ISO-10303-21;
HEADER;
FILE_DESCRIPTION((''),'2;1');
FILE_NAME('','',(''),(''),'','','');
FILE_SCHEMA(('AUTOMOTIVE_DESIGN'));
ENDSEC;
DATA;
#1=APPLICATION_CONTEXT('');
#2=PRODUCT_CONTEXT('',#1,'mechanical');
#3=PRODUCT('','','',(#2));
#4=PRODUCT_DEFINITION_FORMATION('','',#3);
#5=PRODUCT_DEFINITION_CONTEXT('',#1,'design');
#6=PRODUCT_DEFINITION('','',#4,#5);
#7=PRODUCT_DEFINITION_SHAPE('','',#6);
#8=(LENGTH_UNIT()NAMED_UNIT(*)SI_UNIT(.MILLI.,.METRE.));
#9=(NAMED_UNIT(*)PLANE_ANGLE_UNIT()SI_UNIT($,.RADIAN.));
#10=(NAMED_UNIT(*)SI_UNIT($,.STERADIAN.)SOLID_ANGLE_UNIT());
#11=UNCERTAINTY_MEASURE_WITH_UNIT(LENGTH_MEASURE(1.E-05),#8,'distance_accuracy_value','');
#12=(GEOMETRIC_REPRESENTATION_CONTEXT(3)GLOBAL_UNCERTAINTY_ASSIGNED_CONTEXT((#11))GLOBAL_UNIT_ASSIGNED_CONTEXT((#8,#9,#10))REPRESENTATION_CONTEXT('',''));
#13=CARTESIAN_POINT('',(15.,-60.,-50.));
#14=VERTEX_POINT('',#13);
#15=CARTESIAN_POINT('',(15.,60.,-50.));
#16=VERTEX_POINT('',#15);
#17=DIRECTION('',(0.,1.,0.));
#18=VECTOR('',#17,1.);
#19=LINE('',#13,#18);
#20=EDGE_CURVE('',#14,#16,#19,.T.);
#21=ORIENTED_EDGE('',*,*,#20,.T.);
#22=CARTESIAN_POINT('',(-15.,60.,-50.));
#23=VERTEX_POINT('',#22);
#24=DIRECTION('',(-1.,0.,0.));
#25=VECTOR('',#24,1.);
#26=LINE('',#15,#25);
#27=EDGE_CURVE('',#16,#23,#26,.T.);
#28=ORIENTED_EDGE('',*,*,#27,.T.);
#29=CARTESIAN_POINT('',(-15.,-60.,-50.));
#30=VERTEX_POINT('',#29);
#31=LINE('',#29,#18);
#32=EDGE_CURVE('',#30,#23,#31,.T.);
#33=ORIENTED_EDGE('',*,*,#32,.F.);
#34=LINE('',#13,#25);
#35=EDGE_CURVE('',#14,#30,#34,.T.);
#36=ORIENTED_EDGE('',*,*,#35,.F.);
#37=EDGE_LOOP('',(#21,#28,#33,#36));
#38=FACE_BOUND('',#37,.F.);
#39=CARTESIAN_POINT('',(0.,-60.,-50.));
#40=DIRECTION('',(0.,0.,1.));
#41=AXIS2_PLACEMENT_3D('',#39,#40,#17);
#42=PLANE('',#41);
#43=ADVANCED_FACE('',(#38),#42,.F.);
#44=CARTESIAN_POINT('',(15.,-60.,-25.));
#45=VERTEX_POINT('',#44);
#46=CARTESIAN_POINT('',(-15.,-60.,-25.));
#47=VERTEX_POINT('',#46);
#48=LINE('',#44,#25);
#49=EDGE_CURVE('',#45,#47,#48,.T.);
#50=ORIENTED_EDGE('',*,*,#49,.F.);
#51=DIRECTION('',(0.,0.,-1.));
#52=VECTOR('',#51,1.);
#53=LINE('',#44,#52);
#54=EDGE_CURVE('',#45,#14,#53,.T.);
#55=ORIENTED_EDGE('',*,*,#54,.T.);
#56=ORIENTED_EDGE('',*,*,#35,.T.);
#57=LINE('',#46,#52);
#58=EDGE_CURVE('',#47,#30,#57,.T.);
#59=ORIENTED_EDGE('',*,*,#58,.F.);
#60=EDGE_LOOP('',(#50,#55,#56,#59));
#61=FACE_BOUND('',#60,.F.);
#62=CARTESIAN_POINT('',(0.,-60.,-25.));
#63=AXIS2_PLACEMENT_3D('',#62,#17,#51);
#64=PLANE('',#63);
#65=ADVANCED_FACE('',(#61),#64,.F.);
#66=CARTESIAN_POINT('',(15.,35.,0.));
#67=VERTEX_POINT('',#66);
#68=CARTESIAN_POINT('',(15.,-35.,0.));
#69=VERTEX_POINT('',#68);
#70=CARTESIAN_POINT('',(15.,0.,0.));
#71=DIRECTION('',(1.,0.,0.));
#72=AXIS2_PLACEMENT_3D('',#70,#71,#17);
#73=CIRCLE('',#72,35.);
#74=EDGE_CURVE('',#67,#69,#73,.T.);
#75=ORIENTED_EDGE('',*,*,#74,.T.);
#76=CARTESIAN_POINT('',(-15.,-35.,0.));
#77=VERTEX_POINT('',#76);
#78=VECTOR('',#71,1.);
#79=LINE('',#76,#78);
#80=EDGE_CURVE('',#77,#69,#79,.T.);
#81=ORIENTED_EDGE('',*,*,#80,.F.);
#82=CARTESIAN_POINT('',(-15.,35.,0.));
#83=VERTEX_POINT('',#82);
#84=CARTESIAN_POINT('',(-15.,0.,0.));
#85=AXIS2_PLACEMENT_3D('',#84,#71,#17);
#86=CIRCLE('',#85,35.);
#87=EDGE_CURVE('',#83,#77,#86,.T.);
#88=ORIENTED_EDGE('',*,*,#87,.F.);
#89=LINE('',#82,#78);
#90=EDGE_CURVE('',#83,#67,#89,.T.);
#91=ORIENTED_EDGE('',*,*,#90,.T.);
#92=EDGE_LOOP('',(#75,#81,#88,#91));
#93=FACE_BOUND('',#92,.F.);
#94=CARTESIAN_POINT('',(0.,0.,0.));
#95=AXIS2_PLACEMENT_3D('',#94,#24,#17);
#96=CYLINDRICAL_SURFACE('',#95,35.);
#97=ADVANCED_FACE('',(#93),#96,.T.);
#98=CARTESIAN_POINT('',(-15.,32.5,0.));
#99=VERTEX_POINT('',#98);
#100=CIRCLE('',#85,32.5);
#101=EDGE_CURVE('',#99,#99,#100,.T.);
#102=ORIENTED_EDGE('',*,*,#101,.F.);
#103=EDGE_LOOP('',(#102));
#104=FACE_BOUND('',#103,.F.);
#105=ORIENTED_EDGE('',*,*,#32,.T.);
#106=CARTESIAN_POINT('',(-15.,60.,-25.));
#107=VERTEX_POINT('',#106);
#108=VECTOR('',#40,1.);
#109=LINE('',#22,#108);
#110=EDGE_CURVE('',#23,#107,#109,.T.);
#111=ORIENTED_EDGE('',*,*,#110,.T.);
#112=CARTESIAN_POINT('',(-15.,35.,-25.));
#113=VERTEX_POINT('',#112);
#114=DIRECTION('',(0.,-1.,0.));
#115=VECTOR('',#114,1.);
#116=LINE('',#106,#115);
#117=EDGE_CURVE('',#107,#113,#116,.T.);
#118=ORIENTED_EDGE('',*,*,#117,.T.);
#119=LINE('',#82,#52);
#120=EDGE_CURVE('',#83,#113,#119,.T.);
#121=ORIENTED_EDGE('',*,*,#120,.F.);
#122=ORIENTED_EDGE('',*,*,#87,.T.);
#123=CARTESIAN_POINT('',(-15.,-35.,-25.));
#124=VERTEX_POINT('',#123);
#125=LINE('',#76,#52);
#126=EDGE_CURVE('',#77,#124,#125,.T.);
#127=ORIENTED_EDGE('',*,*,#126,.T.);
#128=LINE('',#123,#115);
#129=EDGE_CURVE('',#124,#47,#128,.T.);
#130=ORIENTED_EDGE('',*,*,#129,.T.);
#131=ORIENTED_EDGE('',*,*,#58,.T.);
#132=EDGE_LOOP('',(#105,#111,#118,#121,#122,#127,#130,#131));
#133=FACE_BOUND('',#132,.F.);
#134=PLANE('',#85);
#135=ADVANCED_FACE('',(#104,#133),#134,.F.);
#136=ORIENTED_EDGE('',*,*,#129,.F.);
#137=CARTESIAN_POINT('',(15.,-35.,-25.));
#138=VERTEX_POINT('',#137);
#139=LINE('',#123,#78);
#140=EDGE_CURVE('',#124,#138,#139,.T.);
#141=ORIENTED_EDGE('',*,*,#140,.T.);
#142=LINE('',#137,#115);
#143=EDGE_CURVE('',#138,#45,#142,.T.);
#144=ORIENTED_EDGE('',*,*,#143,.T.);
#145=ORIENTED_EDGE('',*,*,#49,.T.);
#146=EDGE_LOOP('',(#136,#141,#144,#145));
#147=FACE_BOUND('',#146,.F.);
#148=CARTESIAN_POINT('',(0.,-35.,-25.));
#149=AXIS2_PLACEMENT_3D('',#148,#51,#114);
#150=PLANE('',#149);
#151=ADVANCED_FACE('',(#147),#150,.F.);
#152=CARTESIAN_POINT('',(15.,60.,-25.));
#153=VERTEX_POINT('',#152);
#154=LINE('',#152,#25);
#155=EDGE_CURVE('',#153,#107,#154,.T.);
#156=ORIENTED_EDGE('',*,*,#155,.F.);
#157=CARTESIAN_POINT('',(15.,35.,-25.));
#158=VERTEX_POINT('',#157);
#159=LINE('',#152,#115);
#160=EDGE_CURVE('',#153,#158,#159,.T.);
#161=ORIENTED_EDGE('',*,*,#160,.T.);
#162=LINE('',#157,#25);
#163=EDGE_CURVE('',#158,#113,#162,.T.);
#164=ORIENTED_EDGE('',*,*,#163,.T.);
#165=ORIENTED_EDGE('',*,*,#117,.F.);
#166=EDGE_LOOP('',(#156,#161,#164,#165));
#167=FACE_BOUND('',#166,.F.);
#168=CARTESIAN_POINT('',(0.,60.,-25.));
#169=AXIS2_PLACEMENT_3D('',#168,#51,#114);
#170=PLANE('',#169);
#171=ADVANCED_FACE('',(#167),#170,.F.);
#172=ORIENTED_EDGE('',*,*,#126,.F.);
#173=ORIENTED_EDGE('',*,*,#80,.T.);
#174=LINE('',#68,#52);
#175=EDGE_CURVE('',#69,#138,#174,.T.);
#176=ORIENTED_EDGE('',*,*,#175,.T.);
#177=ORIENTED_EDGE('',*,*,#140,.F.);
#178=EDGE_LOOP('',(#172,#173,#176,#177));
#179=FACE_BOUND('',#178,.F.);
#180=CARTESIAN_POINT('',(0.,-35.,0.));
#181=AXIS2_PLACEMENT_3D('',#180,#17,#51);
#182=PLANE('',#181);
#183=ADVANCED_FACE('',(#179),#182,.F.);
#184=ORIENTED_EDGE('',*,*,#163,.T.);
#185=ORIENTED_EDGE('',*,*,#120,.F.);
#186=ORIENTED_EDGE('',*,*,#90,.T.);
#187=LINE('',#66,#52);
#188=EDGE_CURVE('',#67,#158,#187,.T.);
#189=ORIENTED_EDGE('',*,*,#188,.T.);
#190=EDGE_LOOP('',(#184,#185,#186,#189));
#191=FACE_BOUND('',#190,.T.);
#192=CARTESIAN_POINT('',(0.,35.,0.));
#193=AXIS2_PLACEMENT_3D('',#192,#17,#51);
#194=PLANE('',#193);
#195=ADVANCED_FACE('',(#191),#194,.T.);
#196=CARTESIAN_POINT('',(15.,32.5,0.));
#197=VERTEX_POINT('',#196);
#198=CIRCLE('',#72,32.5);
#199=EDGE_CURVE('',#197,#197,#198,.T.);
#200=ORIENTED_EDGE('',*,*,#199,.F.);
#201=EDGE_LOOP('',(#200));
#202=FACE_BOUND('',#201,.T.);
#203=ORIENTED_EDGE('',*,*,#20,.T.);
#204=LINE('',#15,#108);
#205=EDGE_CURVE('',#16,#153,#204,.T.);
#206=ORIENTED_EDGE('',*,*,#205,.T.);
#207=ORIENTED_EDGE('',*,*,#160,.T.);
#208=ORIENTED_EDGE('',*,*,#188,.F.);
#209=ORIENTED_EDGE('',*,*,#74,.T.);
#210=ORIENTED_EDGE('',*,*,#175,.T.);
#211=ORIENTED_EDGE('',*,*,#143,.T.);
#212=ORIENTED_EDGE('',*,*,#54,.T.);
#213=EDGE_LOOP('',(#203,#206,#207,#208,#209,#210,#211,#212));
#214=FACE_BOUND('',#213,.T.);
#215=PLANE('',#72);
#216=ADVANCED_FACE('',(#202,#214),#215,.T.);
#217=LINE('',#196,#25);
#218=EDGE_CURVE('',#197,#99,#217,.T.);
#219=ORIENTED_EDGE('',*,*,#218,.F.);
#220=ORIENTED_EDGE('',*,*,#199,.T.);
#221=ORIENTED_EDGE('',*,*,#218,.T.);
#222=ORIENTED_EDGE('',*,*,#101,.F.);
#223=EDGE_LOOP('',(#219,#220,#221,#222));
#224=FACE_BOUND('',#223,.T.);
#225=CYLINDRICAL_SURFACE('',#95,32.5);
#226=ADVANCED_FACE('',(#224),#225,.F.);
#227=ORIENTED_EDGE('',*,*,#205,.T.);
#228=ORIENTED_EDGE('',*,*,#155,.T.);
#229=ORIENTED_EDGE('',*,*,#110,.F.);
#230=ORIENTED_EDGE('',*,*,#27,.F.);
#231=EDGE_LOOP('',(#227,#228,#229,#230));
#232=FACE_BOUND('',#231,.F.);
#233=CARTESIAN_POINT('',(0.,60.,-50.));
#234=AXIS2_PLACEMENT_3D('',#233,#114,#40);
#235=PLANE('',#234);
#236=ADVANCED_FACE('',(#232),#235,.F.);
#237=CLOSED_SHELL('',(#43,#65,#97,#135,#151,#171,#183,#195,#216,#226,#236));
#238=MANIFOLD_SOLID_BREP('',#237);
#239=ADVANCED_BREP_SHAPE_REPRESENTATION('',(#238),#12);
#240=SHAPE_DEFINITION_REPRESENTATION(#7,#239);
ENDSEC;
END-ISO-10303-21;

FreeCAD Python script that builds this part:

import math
import FreeCAD as App
import Part
import Sketcher

doc = App.newDocument("Part")
params = doc.addObject("Spreadsheet::Sheet", "Params")
for row, (alias, value) in enumerate([
    ("sketch1_diameter", "65 mm"),
    ("sketch1_radius", "35 mm"),
    ("sketch1_width", "25 mm"),
    ("pad1_length", "30 mm"),
], start=1):
    params.set(f"A{row}", alias)
    params.set(f"B{row}", "=" + value)
    params.setAlias(f"B{row}", alias)

body = doc.addObject("PartDesign::Body", "Body")

# Sketch on YZ plane
sketch1 = body.newObject("Sketcher::SketchObject", "Sketch")
sketch1.AttachmentSupport = (doc.getObject("YZ_Plane"), [""])
sketch1.MapMode = "FlatFace"
sketch1.addGeometry([
    Part.LineSegment(App.Vector(35, -25, 0), App.Vector(35, 0, 0)),  # 0
    Part.ArcOfCircle(Part.Circle(App.Vector(0, 0, 0), App.Vector(0, 0, 1), 35), math.radians(0), math.radians(180)),  # 1
    Part.LineSegment(App.Vector(-35, 0, 0), App.Vector(-35, -25, 0)),  # 2
    Part.LineSegment(App.Vector(-35, -25, 0), App.Vector(-60, -25, 0)),  # 3
    Part.LineSegment(App.Vector(-60, -25, 0), App.Vector(-60, -50, 0)),  # 4
    Part.LineSegment(App.Vector(-60, -50, 0), App.Vector(60, -50, 0)),  # 5
    Part.LineSegment(App.Vector(60, -50, 0), App.Vector(60, -25, 0)),  # 6
    Part.LineSegment(App.Vector(60, -25, 0), App.Vector(35, -25, 0)),  # 7
    Part.Circle(App.Vector(0, 0, 0), App.Vector(0, 0, 1), 32),  # 8
], False)
sketch1.addConstraint([
    Sketcher.Constraint("Tangent", 0, 2, 1, 1),
    Sketcher.Constraint("Tangent", 1, 2, 2, 1),
    Sketcher.Constraint("Coincident", 2, 2, 3, 1),
    Sketcher.Constraint("Coincident", 3, 2, 4, 1),
    Sketcher.Constraint("Coincident", 4, 2, 5, 1),
    Sketcher.Constraint("Coincident", 5, 2, 6, 1),
    Sketcher.Constraint("Coincident", 6, 2, 7, 1),
    Sketcher.Constraint("Coincident", 7, 2, 0, 1),
    Sketcher.Constraint("Vertical", 0),
    Sketcher.Constraint("Vertical", 2),
    Sketcher.Constraint("Horizontal", 3),
    Sketcher.Constraint("Vertical", 4),
    Sketcher.Constraint("Horizontal", 5),
    Sketcher.Constraint("Vertical", 6),
    Sketcher.Constraint("Horizontal", 7),
    Sketcher.Constraint("Coincident", 1, 3, -1, 1),
    Sketcher.Constraint("Coincident", 8, 3, -1, 1),
    Sketcher.Constraint("Symmetric", 3, 2, 6, 2, -2),
    Sketcher.Constraint("Equal", 7, 0),
    Sketcher.Constraint("Equal", 2, 4),
    Sketcher.Constraint("Diameter", 8, 65.0),
    Sketcher.Constraint("Radius", 1, 35.0),
    Sketcher.Constraint("DistanceX", 3, 2, 3, 1, 25.0),
])
sketch1.setExpression("Constraints[20]", "Params.sketch1_diameter")
sketch1.setExpression("Constraints[21]", "Params.sketch1_radius")
sketch1.setExpression("Constraints[22]", "Params.sketch1_width")
pad1 = body.newObject("PartDesign::Pad", "Pad")
pad1.Profile = sketch1
pad1.setExpression("Length", "Params.pad1_length")
pad1.Midplane = True

doc.recompute()
